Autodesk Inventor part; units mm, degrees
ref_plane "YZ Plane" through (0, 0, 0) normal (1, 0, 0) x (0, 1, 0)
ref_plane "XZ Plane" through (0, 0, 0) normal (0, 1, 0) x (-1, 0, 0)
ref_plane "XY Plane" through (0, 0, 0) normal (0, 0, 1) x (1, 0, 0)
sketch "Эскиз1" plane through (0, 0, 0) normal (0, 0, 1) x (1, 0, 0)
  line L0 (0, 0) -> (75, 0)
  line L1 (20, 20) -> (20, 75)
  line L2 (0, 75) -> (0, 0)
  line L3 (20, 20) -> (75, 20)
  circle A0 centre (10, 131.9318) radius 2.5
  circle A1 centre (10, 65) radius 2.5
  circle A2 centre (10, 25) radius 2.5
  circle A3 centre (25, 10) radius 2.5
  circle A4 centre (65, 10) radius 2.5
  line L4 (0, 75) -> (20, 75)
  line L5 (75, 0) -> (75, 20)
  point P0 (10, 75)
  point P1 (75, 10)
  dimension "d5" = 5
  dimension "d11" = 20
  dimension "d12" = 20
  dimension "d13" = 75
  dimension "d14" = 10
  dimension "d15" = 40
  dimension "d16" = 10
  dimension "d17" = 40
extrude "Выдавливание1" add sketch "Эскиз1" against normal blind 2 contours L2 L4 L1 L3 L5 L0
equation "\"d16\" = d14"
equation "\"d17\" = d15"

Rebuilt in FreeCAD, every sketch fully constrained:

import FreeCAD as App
import Part
import Sketcher

V = App.Vector


def add_polygon(sketch, points):
    """Adds a closed chain of lines whose ends are joined by coincident constraints."""
    first, n = sketch.GeometryCount, len(points)
    for a, b in zip(points, points[1:] + points[:1]):
        sketch.addGeometry(Part.LineSegment(App.Vector(*a, 0), App.Vector(*b, 0)), False)
    for i in range(n):
        sketch.addConstraint(Sketcher.Constraint("Coincident", first + i, 2, first + (i + 1) % n, 1))

doc = App.newDocument("Part")
body = doc.addObject("PartDesign::Body", "Body")

# Sketch on XY plane
sketch1 = body.newObject("Sketcher::SketchObject", "Sketch")
sketch1.AttachmentSupport = (doc.getObject("XY_Plane"), [""])
sketch1.MapMode = "FlatFace"
add_polygon(sketch1, [(0, 75), (0, 0), (75, 0), (75, 20), (20, 20), (20, 75)])  # lines 0-5
sketch1.addGeometry(Part.Circle(V(10, 25, 0), V(0, 0, 1), 2.5), False)  # 6
sketch1.addGeometry(Part.Circle(V(25, 10, 0), V(0, 0, 1), 2.5), False)  # 7
sketch1.addGeometry(Part.Circle(V(10, 65, 0), V(0, 0, 1), 2.5), False)  # 8
sketch1.addGeometry(Part.Circle(V(65, 10, 0), V(0, 0, 1), 2.5), False)  # 9
sketch1.addConstraint(Sketcher.Constraint("Vertical", 0))
sketch1.addConstraint(Sketcher.Constraint("Horizontal", 1))
sketch1.addConstraint(Sketcher.Constraint("Vertical", 2))
sketch1.addConstraint(Sketcher.Constraint("Horizontal", 3))
sketch1.addConstraint(Sketcher.Constraint("Vertical", 4))
sketch1.addConstraint(Sketcher.Constraint("Horizontal", 5))
sketch1.addConstraint(Sketcher.Constraint("Coincident", 0, 2, -1, 1))
sketch1.addConstraint(Sketcher.Constraint("Equal", 6, 7))
sketch1.addConstraint(Sketcher.Constraint("Equal", 7, 8))
sketch1.addConstraint(Sketcher.Constraint("Equal", 8, 9))
sketch1.addConstraint(Sketcher.Constraint("Horizontal", 7, 3, 9, 3))
sketch1.addConstraint(Sketcher.Constraint("Vertical", 6, 3, 8, 3))
sketch1.addConstraint(Sketcher.Constraint("Equal", 1, 0))
sketch1.addConstraint(Sketcher.Constraint("Equal", 5, 2))
sketch1.addConstraint(Sketcher.Constraint("Diameter", 6, 5.0))
sketch1.addConstraint(Sketcher.Constraint("DistanceX", 1, 1, 1, 2, 75.0))
sketch1.addConstraint(Sketcher.Constraint("DistanceX", 5, 2, 5, 1, 20.0))
sketch1.addConstraint(Sketcher.Constraint("DistanceX", -1, 1, 6, 3, 10.0))
sketch1.addConstraint(Sketcher.Constraint("DistanceY", -1, 1, 7, 3, 10.0))
sketch1.addConstraint(Sketcher.Constraint("DistanceY", 6, 3, 8, 3, 40.0))
sketch1.addConstraint(Sketcher.Constraint("DistanceX", 7, 3, 9, 3, 40.0))
sketch1.addConstraint(Sketcher.Constraint("DistanceX", 9, 3, 1, 2, 10.0))
sketch1.addConstraint(Sketcher.Constraint("DistanceY", 2, 2, 6, 3, 5.0))
pad1 = body.newObject("PartDesign::Pad", "Pad")
pad1.Profile = sketch1
pad1.Length = 2
pad1.Reversed = True

doc.recompute()
